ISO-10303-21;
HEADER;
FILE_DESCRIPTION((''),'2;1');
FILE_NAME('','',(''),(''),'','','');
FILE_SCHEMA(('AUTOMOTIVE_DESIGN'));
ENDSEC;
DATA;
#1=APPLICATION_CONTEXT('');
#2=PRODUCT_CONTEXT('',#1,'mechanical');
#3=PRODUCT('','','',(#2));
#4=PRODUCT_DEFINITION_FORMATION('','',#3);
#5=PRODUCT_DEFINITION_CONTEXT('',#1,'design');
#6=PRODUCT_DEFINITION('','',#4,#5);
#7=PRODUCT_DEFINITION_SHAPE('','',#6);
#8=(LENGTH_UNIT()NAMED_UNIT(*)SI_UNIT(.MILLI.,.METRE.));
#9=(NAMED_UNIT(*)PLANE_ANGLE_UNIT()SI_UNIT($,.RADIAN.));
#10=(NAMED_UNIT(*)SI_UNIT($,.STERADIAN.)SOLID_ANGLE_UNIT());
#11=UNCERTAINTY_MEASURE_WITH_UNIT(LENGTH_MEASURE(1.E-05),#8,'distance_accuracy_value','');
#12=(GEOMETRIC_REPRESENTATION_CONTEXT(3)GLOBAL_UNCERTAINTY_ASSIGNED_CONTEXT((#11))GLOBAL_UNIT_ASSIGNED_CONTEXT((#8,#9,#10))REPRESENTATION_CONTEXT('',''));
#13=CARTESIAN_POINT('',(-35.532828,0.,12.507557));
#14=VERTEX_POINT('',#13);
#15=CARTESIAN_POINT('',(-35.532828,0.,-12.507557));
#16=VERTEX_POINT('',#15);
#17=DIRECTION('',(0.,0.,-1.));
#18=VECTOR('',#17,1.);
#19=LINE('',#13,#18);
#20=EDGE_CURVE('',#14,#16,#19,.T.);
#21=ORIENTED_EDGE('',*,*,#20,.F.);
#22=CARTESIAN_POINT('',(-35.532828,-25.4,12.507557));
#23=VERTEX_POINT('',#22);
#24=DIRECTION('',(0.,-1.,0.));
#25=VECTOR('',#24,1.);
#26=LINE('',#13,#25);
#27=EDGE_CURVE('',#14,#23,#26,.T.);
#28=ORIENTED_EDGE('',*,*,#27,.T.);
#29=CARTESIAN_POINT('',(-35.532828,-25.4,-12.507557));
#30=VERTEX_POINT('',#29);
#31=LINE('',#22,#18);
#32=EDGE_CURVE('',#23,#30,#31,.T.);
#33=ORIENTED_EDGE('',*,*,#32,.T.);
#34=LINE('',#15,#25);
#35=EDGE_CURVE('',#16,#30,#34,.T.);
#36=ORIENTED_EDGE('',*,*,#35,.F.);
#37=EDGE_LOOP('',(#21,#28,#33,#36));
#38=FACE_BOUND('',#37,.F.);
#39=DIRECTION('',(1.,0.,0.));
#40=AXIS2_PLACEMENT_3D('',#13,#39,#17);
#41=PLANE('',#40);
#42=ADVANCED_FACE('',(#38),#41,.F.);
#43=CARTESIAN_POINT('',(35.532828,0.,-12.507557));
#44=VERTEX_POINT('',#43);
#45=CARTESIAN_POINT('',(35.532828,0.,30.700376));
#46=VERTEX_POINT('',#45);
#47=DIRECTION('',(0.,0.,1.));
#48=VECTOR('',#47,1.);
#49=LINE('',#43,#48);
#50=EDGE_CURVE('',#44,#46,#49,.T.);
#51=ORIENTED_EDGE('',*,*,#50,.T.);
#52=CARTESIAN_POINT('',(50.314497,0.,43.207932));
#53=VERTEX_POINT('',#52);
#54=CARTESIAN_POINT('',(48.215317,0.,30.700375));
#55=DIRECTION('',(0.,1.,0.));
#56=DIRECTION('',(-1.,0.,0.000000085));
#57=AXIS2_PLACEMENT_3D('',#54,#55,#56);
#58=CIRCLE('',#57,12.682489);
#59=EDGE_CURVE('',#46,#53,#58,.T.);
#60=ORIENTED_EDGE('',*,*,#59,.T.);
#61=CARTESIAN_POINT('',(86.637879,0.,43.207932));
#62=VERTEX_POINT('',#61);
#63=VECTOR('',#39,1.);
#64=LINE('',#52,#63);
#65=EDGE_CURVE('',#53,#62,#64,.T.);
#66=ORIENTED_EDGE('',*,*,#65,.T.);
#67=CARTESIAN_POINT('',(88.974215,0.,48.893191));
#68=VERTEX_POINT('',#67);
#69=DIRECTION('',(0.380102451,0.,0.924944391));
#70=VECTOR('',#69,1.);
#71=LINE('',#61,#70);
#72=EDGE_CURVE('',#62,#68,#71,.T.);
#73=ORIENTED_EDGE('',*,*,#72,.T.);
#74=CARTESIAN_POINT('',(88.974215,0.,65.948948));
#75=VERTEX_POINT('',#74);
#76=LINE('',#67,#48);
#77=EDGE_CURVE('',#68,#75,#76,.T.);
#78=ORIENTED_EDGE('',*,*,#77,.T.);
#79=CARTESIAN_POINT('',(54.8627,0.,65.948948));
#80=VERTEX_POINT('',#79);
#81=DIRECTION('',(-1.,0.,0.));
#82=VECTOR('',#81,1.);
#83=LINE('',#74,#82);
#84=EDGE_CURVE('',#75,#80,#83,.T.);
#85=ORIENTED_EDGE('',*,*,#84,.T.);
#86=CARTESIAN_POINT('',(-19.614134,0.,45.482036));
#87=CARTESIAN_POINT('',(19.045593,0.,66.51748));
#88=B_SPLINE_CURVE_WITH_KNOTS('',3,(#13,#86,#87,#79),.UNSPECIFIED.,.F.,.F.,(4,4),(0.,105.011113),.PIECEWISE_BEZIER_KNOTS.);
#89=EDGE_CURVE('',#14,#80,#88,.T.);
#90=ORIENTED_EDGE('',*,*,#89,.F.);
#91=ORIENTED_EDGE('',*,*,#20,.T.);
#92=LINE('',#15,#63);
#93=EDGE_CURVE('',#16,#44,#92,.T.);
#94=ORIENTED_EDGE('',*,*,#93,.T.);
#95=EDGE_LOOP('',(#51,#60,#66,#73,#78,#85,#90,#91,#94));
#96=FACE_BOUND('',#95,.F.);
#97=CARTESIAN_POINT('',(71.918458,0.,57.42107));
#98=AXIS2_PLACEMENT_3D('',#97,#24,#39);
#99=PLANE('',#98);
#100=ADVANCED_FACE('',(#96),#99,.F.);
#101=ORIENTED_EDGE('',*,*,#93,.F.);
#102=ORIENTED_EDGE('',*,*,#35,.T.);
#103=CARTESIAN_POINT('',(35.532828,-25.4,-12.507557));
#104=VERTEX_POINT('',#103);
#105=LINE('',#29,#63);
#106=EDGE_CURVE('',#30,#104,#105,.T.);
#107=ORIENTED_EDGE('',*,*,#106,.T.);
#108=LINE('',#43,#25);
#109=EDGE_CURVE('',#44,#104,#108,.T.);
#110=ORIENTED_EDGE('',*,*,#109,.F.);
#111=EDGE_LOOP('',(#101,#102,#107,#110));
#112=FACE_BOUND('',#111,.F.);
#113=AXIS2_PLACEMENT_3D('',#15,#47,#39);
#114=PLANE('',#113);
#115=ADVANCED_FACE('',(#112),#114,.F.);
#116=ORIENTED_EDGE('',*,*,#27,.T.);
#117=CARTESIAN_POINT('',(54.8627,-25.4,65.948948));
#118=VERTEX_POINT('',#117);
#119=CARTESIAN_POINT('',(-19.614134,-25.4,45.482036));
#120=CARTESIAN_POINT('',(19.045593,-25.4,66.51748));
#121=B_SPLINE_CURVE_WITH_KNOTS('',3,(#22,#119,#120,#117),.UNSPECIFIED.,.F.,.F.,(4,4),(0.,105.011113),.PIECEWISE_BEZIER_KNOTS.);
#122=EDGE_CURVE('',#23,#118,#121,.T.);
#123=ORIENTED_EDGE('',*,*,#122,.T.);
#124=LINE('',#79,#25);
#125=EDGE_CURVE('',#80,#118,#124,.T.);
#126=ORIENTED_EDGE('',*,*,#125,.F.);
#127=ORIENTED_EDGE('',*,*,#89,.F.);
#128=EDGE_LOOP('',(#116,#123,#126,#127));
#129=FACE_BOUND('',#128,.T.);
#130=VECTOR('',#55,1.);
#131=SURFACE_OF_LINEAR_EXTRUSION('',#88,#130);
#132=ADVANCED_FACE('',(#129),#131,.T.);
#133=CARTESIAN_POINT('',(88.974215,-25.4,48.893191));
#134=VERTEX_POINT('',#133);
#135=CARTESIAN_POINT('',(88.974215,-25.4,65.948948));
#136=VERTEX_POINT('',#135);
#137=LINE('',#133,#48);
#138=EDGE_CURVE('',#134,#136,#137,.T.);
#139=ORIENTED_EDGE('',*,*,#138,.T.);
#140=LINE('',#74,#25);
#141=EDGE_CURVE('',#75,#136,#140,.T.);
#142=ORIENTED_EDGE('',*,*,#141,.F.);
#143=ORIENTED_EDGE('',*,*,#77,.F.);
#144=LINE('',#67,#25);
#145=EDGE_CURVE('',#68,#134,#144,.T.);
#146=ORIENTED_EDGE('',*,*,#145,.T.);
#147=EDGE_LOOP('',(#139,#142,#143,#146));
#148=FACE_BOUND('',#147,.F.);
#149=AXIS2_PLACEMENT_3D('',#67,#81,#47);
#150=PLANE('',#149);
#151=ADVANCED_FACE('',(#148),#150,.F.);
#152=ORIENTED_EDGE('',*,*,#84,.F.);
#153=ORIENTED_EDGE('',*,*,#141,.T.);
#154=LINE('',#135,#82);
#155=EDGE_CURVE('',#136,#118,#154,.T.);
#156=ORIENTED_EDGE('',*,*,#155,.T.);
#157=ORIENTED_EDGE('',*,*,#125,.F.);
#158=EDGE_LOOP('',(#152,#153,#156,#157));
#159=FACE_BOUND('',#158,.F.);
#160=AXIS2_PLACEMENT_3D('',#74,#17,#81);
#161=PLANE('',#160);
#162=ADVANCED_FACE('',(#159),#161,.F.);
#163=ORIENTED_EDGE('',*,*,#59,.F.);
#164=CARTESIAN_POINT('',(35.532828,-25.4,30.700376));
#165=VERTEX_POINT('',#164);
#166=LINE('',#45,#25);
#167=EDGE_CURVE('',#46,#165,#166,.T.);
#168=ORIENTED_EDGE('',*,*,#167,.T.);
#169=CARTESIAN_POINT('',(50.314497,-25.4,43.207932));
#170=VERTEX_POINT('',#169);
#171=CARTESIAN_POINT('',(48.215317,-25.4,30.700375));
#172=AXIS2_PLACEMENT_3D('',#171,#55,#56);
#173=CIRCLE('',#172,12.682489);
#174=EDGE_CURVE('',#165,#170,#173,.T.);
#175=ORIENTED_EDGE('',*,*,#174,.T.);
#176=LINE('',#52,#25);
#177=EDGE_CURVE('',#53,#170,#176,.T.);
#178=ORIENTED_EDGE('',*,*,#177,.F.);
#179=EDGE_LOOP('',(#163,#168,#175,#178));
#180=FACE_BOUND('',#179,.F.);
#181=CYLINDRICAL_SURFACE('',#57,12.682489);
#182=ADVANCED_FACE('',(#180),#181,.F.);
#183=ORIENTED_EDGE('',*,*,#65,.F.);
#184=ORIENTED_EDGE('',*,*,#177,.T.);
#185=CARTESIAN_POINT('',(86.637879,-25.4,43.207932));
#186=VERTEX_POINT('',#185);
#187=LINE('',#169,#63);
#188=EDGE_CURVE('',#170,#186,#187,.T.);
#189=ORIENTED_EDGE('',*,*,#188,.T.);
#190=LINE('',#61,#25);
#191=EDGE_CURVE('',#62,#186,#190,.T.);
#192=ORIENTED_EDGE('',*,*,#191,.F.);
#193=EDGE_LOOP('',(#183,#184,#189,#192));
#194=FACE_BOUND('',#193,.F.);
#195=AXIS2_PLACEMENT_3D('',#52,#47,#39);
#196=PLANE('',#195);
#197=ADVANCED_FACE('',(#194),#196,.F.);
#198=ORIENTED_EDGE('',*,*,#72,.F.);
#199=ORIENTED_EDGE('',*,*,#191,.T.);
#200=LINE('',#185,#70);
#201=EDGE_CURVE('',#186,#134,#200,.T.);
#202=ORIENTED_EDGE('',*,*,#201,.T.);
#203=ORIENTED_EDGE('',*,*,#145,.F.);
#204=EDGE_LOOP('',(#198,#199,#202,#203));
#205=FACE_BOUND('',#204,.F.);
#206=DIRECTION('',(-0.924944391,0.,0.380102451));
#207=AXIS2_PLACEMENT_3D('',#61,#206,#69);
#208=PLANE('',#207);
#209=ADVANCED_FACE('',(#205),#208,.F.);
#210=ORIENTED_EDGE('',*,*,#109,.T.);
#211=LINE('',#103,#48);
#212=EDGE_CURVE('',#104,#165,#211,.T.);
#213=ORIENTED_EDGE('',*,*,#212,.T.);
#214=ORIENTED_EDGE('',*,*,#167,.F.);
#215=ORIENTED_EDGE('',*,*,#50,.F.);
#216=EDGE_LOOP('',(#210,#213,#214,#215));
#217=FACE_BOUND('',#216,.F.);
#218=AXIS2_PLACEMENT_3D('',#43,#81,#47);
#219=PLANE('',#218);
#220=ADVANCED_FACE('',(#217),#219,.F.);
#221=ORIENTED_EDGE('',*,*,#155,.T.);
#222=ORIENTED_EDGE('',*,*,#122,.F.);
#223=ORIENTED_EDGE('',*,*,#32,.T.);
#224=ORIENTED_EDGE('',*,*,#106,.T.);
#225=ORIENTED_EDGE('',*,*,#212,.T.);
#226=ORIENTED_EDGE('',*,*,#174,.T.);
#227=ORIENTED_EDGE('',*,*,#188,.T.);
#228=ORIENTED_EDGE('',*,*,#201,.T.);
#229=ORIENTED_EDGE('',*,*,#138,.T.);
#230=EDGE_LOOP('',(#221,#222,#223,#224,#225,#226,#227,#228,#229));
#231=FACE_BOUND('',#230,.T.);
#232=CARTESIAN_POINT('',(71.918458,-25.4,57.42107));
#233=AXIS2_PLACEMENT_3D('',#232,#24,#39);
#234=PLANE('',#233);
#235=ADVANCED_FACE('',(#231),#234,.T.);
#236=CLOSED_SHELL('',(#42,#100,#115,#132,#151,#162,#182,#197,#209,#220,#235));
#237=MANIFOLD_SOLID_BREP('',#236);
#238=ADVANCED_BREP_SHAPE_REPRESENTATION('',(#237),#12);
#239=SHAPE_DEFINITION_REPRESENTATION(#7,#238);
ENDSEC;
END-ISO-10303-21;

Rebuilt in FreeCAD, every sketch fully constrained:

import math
import FreeCAD as App
import Part
import Sketcher

V = App.Vector
Q = App.Units.Quantity

doc = App.newDocument("Part")
body = doc.addObject("PartDesign::Body", "Body")

sketch1 = body.newObject("Sketcher::SketchObject", "Sketch")
sketch1.AttachmentSupport = (doc.getObject("XZ_Plane"), [""])
sketch1.MapMode = "FlatFace"
sketch1.addGeometry([
    Part.LineSegment(V(88.974215, 65.948948, 0), V(54.8627, 65.948948, 0)),
    Part.BSplineCurve([V(-35.532828, 12.507557, 0), V(-19.614134, 45.482036, 0), V(19.045593, 66.51748, 0), V(54.8627, 65.948948, 0)], [4, 4], [0, 105.011113], False, 3, [1, 1, 1, 1], False),
    Part.LineSegment(V(-35.532828, 12.507557, 0), V(-35.532828, -12.507557, 0)),
    Part.LineSegment(V(-35.532828, -12.507557, 0), V(35.532828, -12.507557, 0)),
    Part.LineSegment(V(35.532828, -12.507557, 0), V(35.532828, 30.700376, 0)),
    Part.ArcOfCircle(Part.Circle(V(48.215317, 30.700375, 0), V(0, 0, 1), 12.682489), math.radians(80.472676), math.radians(179.999995)),
    Part.LineSegment(V(50.314497, 43.207932, 0), V(86.637879, 43.207932, 0)),
    Part.LineSegment(V(86.637879, 43.207932, 0), V(88.974215, 48.893191, 0)),
    Part.LineSegment(V(88.974215, 48.893191, 0), V(88.974215, 65.948948, 0)),
], False)
sketch1.addConstraint([
    Sketcher.Constraint("Block", 1),
    Sketcher.Constraint("Coincident", 0, 2, 1, 2),
    Sketcher.Constraint("Coincident", 1, 1, 2, 1),
    Sketcher.Constraint("Coincident", 2, 2, 3, 1),
    Sketcher.Constraint("Coincident", 3, 2, 4, 1),
    Sketcher.Constraint("Tangent", 4, 2, 5, 2),
    Sketcher.Constraint("Coincident", 5, 1, 6, 1),
    Sketcher.Constraint("Coincident", 6, 2, 7, 1),
    Sketcher.Constraint("Coincident", 7, 2, 8, 1),
    Sketcher.Constraint("Coincident", 8, 2, 0, 1),
    Sketcher.Constraint("Horizontal", 0),
    Sketcher.Constraint("Vertical", 2),
    Sketcher.Constraint("Horizontal", 3),
    Sketcher.Constraint("Vertical", 4),
    Sketcher.Constraint("Horizontal", 6),
    Sketcher.Constraint("Vertical", 8),
    Sketcher.Constraint("Radius", 5, 12.682489),
    Sketcher.Constraint("DistanceX", 6, 1, 6, 2, 36.323382),
    Sketcher.Constraint("DistanceX", 0, 2, 0, 1, 34.111515),
    Sketcher.Constraint("DistanceX", 3, 1, 3, 2, 71.065656),
    Sketcher.Constraint("DistanceY", 2, 2, 2, 1, 25.015114),
    Sketcher.Constraint("DistanceY", 4, 1, 4, 2, 43.207933),
    Sketcher.Constraint("DistanceY", 8, 1, 8, 2, 17.055757),
    Sketcher.Constraint("DistanceX", -1, 1, 6, 2, 86.637879),
])
pad1 = body.newObject("PartDesign::Pad", "Pad")
pad1.Profile = sketch1
pad1.Length = Q("1 in")

doc.recompute()
